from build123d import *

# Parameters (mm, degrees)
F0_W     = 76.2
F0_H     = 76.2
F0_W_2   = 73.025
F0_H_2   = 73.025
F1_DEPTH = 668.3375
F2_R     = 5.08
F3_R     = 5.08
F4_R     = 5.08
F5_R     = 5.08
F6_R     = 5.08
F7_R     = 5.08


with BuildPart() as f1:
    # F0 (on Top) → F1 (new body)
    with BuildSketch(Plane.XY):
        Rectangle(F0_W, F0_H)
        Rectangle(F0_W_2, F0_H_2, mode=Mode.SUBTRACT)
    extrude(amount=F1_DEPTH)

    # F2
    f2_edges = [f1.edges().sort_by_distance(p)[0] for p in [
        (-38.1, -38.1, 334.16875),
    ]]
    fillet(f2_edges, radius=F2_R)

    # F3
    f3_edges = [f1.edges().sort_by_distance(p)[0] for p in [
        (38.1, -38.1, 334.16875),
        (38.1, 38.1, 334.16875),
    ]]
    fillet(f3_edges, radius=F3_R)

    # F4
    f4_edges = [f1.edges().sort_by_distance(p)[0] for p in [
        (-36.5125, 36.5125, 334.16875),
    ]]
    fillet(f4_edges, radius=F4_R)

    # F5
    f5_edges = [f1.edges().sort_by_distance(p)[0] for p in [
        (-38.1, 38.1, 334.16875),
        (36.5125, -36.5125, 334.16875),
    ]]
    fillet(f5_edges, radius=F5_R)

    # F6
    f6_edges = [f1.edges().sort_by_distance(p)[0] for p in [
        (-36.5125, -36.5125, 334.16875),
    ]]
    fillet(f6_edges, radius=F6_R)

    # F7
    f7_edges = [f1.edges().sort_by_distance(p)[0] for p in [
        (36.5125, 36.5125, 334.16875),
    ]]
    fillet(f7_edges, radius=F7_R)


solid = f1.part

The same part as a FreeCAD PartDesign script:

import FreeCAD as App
import Part
import Sketcher
Q = App.Units.Quantity


def edges_at(feature, points):
    """Names of the edges that pass closest to the given points."""
    edges = feature.Shape.Edges
    near = lambda p: min(range(len(edges)), key=lambda i: edges[i].distToShape(Part.Vertex(*p))[0])
    return sorted({f"Edge{near(p) + 1}" for p in points})


def add_polygon(sketch, points):
    """Adds a closed chain of lines whose ends are joined by coincident constraints."""
    first, n = sketch.GeometryCount, len(points)
    for a, b in zip(points, points[1:] + points[:1]):
        sketch.addGeometry(Part.LineSegment(App.Vector(*a, 0), App.Vector(*b, 0)), False)
    for i in range(n):
        sketch.addConstraint(Sketcher.Constraint("Coincident", first + i, 2, first + (i + 1) % n, 1))

doc = App.newDocument("Part")
body = doc.addObject("PartDesign::Body", "Body")

sketch1 = doc.addObject("Sketcher::SketchObject", "Sketch")
body.addObject(sketch1)
sketch1.AttachmentSupport = (doc.XY_Plane, [""])
sketch1.MapMode = "FlatFace"
add_polygon(sketch1, [(-38, 38), (-38, -38), (38, -38), (38, 38)])
add_polygon(sketch1, [(37, -37), (-37, -37), (-37, 37), (37, 37)])
sketch1.addConstraint(Sketcher.Constraint("Vertical", 0))
sketch1.addConstraint(Sketcher.Constraint("Horizontal", 1))
sketch1.addConstraint(Sketcher.Constraint("Vertical", 2))
sketch1.addConstraint(Sketcher.Constraint("Horizontal", 3))
sketch1.addConstraint(Sketcher.Constraint("Horizontal", 4))
sketch1.addConstraint(Sketcher.Constraint("Vertical", 5))
sketch1.addConstraint(Sketcher.Constraint("Horizontal", 6))
sketch1.addConstraint(Sketcher.Constraint("Vertical", 7))
sketch1.addConstraint(Sketcher.Constraint("Symmetric", 0, 2, 2, 2, -1, 1))
sketch1.addConstraint(Sketcher.Constraint("Symmetric", 4, 2, 6, 2, -1, 1))
sketch1.addConstraint(Sketcher.Constraint("Equal", 3, 0))
sketch1.addConstraint(Sketcher.Constraint("Equal", 6, 5))
sketch1.addConstraint(Sketcher.Constraint("DistanceX", 1, 1, 1, 2, Q("3 in")))
sketch1.addConstraint(Sketcher.Constraint("DistanceX", 4, 2, 4, 1, Q("2.875 in")))
pad1 = doc.addObject("PartDesign::Pad", "Pad")
body.addObject(pad1)
pad1.Profile = sketch1
pad1.Length = Q("26.3125 in")
doc.recompute()

fillet = doc.addObject("PartDesign::Fillet", "Fillet")
body.addObject(fillet)
fillet.Base = (pad1, edges_at(pad1, [(-38.1, -38.1, 334.169)]))
fillet.Radius = Q("0.2 in")
doc.recompute()

fillet2 = doc.addObject("PartDesign::Fillet", "Fillet001")
body.addObject(fillet2)
fillet2.Base = (fillet, edges_at(fillet, [(38.1, -38.1, 334.169), (38.1, 38.1, 334.169)]))
fillet2.Radius = Q("0.2 in")
doc.recompute()

fillet3 = doc.addObject("PartDesign::Fillet", "Fillet002")
body.addObject(fillet3)
fillet3.Base = (fillet2, edges_at(fillet2, [(-36.513, 36.513, 334.169)]))
fillet3.Radius = Q("0.2 in")
doc.recompute()

fillet4 = doc.addObject("PartDesign::Fillet", "Fillet003")
body.addObject(fillet4)
fillet4.Base = (fillet3, edges_at(fillet3, [(-38.1, 38.1, 334.169), (36.513, -36.513, 334.169)]))
fillet4.Radius = Q("0.2 in")
doc.recompute()

fillet5 = doc.addObject("PartDesign::Fillet", "Fillet004")
body.addObject(fillet5)
fillet5.Base = (fillet4, edges_at(fillet4, [(-36.513, -36.513, 334.169)]))
fillet5.Radius = Q("0.2 in")
doc.recompute()

fillet6 = doc.addObject("PartDesign::Fillet", "Fillet005")
body.addObject(fillet6)
fillet6.Base = (fillet5, edges_at(fillet5, [(36.513, 36.513, 334.169)]))
fillet6.Radius = Q("0.2 in")

doc.recompute()
